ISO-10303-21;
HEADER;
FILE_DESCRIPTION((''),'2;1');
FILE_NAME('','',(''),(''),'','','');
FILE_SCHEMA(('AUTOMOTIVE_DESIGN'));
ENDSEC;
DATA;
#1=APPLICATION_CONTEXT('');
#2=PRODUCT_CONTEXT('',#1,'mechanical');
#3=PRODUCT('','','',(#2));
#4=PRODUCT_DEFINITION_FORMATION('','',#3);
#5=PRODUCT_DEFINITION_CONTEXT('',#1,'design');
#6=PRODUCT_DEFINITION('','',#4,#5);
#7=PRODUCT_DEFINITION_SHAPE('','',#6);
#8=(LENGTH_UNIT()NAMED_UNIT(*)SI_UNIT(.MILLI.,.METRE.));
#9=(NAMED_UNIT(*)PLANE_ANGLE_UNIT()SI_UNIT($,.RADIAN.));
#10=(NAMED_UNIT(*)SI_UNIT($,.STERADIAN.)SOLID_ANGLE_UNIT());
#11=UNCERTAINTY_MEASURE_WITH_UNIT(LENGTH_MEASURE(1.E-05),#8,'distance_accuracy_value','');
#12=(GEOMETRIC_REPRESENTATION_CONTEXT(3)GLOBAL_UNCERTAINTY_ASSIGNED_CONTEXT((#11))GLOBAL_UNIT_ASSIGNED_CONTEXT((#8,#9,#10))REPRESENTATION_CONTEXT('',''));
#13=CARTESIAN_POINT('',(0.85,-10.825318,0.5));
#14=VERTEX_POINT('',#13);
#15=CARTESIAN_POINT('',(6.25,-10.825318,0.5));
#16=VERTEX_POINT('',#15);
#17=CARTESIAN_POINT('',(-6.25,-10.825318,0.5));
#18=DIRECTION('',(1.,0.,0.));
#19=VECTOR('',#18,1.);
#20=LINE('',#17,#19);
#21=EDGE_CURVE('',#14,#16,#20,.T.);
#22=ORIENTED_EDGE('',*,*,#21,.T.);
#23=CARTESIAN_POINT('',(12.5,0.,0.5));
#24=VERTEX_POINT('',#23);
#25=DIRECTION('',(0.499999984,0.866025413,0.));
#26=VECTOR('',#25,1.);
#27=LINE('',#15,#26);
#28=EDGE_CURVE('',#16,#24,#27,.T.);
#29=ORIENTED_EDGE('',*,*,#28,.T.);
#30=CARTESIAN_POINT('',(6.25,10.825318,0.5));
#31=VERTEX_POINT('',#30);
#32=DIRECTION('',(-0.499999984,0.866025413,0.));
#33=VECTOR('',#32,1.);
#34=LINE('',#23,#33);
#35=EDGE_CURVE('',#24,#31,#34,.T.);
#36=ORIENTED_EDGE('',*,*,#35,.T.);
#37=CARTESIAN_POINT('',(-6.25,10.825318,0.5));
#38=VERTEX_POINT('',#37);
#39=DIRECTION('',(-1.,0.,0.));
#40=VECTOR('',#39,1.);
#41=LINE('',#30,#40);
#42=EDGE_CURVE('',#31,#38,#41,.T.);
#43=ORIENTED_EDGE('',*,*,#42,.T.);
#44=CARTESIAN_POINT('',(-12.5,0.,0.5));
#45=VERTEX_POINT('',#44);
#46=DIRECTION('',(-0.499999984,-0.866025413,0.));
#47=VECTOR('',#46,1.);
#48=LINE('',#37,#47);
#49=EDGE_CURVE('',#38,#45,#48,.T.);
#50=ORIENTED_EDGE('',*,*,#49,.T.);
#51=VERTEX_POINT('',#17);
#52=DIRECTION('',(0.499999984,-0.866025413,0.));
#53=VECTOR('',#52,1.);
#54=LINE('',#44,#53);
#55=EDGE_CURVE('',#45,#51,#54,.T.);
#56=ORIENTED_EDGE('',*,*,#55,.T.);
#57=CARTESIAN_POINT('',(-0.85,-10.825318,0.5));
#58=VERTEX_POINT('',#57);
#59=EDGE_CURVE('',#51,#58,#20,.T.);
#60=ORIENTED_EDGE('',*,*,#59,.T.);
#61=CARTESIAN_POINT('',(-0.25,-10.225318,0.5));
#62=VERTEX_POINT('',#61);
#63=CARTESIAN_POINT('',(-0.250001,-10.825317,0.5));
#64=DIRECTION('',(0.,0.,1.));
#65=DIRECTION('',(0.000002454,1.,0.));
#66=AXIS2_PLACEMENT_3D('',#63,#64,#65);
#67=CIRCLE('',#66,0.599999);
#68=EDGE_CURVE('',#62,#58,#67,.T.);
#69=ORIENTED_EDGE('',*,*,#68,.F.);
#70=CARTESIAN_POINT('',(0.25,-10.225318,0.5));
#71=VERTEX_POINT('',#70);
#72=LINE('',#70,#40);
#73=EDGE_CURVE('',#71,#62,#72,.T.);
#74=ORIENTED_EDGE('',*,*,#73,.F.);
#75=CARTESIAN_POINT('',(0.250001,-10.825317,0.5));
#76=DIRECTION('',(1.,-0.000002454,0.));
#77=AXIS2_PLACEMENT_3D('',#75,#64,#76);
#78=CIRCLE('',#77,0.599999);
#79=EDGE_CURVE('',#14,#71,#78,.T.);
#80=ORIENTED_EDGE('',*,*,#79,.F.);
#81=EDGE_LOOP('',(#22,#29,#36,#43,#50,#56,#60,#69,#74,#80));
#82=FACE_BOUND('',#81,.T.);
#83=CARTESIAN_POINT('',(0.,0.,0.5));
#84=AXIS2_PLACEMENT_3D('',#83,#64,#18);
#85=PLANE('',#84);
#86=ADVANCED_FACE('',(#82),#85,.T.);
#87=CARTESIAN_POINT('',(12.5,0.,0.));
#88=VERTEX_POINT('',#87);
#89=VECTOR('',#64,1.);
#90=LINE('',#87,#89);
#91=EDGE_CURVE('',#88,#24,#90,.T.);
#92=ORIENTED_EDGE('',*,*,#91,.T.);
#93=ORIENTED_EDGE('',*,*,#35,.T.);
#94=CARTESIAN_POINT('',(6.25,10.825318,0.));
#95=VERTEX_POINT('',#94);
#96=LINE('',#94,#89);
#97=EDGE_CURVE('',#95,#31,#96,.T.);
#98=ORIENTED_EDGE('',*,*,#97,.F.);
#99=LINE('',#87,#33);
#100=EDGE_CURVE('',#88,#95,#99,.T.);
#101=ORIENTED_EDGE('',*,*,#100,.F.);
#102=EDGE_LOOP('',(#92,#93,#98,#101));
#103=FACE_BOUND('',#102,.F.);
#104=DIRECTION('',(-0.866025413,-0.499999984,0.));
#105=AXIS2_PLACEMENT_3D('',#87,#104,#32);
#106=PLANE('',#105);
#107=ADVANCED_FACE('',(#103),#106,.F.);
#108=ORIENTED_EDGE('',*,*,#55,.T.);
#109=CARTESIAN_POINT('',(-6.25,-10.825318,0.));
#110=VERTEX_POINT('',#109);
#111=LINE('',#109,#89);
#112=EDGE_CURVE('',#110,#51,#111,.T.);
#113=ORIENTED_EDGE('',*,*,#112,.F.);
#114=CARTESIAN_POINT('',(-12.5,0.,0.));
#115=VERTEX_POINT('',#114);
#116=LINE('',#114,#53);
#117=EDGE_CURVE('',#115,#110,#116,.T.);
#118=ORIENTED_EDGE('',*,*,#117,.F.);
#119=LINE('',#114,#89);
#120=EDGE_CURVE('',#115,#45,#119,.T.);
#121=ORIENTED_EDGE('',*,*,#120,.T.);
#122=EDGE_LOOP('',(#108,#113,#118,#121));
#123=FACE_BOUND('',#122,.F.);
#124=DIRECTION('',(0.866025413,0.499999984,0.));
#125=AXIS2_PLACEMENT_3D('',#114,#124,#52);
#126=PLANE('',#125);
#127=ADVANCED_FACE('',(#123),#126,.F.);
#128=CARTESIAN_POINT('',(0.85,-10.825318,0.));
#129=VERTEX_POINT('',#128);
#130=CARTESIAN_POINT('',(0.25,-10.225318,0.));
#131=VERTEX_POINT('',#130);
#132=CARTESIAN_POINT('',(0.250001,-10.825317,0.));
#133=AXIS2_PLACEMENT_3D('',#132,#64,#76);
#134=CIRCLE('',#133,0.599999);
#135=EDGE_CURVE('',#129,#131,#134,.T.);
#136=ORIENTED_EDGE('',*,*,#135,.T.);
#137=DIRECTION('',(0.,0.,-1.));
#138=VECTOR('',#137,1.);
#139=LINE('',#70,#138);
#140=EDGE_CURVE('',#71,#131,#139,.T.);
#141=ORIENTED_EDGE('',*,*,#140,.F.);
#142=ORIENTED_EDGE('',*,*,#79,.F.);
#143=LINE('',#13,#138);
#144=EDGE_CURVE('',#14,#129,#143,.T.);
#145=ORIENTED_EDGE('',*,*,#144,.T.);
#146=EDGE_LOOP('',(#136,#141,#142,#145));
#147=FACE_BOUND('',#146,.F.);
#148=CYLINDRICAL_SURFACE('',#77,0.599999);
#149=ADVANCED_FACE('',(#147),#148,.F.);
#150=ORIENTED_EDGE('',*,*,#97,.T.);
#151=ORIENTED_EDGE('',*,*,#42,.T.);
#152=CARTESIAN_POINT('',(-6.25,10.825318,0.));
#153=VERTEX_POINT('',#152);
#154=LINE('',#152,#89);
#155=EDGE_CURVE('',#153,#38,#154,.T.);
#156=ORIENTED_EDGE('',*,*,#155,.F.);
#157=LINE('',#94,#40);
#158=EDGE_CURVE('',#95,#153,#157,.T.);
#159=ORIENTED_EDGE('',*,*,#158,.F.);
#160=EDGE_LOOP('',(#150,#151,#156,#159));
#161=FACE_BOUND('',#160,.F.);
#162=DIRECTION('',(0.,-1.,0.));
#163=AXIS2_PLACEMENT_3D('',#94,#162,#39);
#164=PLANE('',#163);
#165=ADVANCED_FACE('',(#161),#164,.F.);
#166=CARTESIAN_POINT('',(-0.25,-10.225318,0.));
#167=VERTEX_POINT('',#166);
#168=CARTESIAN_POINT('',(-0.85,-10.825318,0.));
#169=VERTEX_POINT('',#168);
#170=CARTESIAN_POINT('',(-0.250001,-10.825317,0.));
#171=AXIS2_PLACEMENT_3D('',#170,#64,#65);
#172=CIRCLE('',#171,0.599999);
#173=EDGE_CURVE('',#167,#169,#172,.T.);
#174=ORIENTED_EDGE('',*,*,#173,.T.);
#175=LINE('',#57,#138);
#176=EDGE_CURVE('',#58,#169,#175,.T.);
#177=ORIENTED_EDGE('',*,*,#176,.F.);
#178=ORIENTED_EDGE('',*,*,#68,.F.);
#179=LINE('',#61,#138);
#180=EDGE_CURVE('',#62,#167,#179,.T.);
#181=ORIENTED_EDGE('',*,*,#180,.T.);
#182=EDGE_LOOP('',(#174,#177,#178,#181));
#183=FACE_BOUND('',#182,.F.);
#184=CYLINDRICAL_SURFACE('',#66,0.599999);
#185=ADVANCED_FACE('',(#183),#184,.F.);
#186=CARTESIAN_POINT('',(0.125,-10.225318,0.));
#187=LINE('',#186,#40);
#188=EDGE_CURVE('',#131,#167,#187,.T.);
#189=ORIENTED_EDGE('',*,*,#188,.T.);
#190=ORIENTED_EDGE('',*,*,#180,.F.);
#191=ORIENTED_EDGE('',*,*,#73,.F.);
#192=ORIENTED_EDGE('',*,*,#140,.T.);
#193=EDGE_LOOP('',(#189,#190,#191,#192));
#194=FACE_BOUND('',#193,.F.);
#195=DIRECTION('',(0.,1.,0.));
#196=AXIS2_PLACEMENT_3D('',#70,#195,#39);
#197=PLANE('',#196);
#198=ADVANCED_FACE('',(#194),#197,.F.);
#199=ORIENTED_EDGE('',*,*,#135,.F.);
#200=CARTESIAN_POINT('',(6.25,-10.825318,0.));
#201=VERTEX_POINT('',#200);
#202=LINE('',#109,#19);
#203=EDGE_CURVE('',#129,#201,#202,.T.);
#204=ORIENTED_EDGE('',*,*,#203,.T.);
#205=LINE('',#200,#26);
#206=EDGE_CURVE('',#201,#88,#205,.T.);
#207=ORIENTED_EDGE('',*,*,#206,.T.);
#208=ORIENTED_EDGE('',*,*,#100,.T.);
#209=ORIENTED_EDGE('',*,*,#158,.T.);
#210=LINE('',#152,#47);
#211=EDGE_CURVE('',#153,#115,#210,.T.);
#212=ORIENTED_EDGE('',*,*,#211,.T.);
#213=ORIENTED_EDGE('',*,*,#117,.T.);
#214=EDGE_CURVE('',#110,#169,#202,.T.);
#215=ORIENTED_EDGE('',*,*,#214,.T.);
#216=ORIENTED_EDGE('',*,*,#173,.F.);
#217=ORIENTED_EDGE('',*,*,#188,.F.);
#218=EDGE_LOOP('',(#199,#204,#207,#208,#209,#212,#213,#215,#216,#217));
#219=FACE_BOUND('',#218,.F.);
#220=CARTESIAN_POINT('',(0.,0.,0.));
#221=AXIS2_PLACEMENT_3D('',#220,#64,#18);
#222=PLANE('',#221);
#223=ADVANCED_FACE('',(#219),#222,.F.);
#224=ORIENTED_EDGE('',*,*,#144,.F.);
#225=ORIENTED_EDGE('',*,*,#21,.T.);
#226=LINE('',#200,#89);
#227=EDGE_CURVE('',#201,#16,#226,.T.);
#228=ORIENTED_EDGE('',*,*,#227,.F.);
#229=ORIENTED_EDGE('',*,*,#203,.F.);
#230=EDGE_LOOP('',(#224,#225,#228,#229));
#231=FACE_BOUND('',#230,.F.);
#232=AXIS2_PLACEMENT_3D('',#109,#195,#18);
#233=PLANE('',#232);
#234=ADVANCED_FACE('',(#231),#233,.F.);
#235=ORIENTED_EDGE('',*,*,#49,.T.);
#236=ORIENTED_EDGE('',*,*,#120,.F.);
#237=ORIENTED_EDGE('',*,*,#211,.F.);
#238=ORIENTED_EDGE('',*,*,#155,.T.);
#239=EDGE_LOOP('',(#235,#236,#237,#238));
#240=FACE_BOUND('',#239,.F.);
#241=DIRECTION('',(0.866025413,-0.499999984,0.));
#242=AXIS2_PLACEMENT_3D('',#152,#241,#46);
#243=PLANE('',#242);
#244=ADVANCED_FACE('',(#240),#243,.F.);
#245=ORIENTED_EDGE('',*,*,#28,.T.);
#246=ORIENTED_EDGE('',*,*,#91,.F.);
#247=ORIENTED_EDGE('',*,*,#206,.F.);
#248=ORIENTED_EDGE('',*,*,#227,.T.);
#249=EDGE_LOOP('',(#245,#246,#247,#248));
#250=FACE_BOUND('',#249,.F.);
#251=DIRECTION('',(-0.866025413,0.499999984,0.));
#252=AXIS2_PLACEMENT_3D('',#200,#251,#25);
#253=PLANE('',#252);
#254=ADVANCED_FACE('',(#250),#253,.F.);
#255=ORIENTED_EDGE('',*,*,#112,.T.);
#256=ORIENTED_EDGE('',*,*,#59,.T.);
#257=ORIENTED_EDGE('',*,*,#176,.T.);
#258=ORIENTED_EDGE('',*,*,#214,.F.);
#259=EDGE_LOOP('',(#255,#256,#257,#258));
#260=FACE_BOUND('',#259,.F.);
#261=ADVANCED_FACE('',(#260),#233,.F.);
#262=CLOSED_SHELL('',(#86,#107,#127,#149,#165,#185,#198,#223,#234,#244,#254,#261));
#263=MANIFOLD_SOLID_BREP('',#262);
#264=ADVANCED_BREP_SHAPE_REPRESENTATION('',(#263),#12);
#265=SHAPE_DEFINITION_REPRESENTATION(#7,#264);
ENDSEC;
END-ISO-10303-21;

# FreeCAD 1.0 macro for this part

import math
import FreeCAD as App
import Part
import Sketcher
Q = App.Units.Quantity

doc = App.newDocument("Part")
params = doc.addObject("Spreadsheet::Sheet", "Params")
for row, (alias, value) in enumerate([
    ("sketch1_width", "12.5 mm"),
    ("pad1_length", "0.5 mm"),
    ("sketch2_radius", "0.599999 mm"),
    ("sketch2_width", "0.5 mm"),
    ("sketch2_width2", "1.7 mm"),
], start=1):
    params.set(f"A{row}", alias)
    params.set(f"B{row}", "=" + value)
    params.setAlias(f"B{row}", alias)

body = doc.addObject("PartDesign::Body", "Body")

# Sketch on XY plane
sketch1 = doc.addObject("Sketcher::SketchObject", "Sketch")
body.addObject(sketch1)
sketch1.AttachmentSupport = (doc.XY_Plane, [""])
sketch1.MapMode = "FlatFace"
sketch1.addGeometry([
    Part.LineSegment(App.Vector(6, -11, 0), App.Vector(12, 0, 0)),  # 0
    Part.LineSegment(App.Vector(12, 0, 0), App.Vector(6, 11, 0)),  # 1
    Part.LineSegment(App.Vector(6, 11, 0), App.Vector(-6, 11, 0)),  # 2
    Part.LineSegment(App.Vector(-6, 11, 0), App.Vector(-12, 0, 0)),  # 3
    Part.LineSegment(App.Vector(-12, 0, 0), App.Vector(-6, -11, 0)),  # 4
    Part.LineSegment(App.Vector(-6, -11, 0), App.Vector(6, -11, 0)),  # 5
], False)
sketch1.addConstraint([
    Sketcher.Constraint("Coincident", 0, 2, 1, 1),
    Sketcher.Constraint("Coincident", 1, 2, 2, 1),
    Sketcher.Constraint("Coincident", 2, 2, 3, 1),
    Sketcher.Constraint("Coincident", 3, 2, 4, 1),
    Sketcher.Constraint("Coincident", 4, 2, 5, 1),
    Sketcher.Constraint("Coincident", 5, 2, 0, 1),
    Sketcher.Constraint("Horizontal", 2),
    Sketcher.Constraint("Horizontal", 5),
    Sketcher.Constraint("Symmetric", 0, 2, 3, 2, -1, 1),
    Sketcher.Constraint("Symmetric", 1, 2, 4, 2, -1, 1),
    Sketcher.Constraint("PointOnObject", 0, 2, -1),
    Sketcher.Constraint("Parallel", 0, 3),
    Sketcher.Constraint("Vertical", 2, 2, 4, 2),
    Sketcher.Constraint("Angle", 0, Q("60.000001 deg")),
    Sketcher.Constraint("DistanceX", 2, 2, 2, 1, Q("12.5 mm")),
    Sketcher.Constraint("DistanceX", 3, 2, 0, 2, Q("25 mm")),
])
sketch1.setExpression("Constraints[14]", "Params.sketch1_width")
pad1 = doc.addObject("PartDesign::Pad", "Pad")
body.addObject(pad1)
pad1.Profile = sketch1
pad1.setExpression("Length", "Params.pad1_length")

# Sketch on XY plane
sketch2 = doc.addObject("Sketcher::SketchObject", "Sketch001")
body.addObject(sketch2)
sketch2.AttachmentSupport = (doc.XY_Plane, [""])
sketch2.MapMode = "FlatFace"
sketch2.AttachmentOffset = App.Placement(App.Vector(0, 0, 0.5), App.Rotation())
sketch2.addGeometry([
    Part.ArcOfCircle(Part.Circle(App.Vector(0.3, -10.8, 0), App.Vector(0, 0, 1), 0.6), math.radians(0), math.radians(90)),
    Part.LineSegment(App.Vector(0.2, -10.2, 0), App.Vector(-0.2, -10.2, 0)),
    Part.ArcOfCircle(Part.Circle(App.Vector(-0.3, -10.8, 0), App.Vector(0, 0, 1), 0.6), math.radians(90), math.radians(180)),
    Part.LineSegment(App.Vector(-0.8, -10.8, 0), App.Vector(0.8, -10.8, 0)),
], False)
sketch2.addConstraint([
    Sketcher.Constraint("Coincident", 0, 2, 1, 1),
    Sketcher.Constraint("Coincident", 1, 2, 2, 1),
    Sketcher.Constraint("Coincident", 2, 2, 3, 1),
    Sketcher.Constraint("Coincident", 3, 2, 0, 1),
    Sketcher.Constraint("Horizontal", 1),
    Sketcher.Constraint("Horizontal", 3),
    Sketcher.Constraint("Equal", 0, 2),
    Sketcher.Constraint("Horizontal", 0, 3, 2, 2),
    Sketcher.Constraint("Vertical", 2, 3, 1, 2),
    Sketcher.Constraint("Radius", 0, Q("0.599999 mm")),
    Sketcher.Constraint("DistanceX", 1, 2, 1, 1, Q("0.5 mm")),
    Sketcher.Constraint("DistanceX", 3, 1, 3, 2, Q("1.7 mm")),
    Sketcher.Constraint("DistanceX", -1, 1, 0, 3, Q("0.250001 mm")),
    Sketcher.Constraint("DistanceY", 0, 2, -1, 1, Q("10.225318 mm")),
])
sketch2.setExpression("Constraints[9]", "Params.sketch2_radius")
sketch2.setExpression("Constraints[10]", "Params.sketch2_width")
sketch2.setExpression("Constraints[11]", "Params.sketch2_width2")
pocket1 = doc.addObject("PartDesign::Pocket", "Pocket")
body.addObject(pocket1)
pocket1.Profile = sketch2
pocket1.Type = "ThroughAll"

doc.recompute()
